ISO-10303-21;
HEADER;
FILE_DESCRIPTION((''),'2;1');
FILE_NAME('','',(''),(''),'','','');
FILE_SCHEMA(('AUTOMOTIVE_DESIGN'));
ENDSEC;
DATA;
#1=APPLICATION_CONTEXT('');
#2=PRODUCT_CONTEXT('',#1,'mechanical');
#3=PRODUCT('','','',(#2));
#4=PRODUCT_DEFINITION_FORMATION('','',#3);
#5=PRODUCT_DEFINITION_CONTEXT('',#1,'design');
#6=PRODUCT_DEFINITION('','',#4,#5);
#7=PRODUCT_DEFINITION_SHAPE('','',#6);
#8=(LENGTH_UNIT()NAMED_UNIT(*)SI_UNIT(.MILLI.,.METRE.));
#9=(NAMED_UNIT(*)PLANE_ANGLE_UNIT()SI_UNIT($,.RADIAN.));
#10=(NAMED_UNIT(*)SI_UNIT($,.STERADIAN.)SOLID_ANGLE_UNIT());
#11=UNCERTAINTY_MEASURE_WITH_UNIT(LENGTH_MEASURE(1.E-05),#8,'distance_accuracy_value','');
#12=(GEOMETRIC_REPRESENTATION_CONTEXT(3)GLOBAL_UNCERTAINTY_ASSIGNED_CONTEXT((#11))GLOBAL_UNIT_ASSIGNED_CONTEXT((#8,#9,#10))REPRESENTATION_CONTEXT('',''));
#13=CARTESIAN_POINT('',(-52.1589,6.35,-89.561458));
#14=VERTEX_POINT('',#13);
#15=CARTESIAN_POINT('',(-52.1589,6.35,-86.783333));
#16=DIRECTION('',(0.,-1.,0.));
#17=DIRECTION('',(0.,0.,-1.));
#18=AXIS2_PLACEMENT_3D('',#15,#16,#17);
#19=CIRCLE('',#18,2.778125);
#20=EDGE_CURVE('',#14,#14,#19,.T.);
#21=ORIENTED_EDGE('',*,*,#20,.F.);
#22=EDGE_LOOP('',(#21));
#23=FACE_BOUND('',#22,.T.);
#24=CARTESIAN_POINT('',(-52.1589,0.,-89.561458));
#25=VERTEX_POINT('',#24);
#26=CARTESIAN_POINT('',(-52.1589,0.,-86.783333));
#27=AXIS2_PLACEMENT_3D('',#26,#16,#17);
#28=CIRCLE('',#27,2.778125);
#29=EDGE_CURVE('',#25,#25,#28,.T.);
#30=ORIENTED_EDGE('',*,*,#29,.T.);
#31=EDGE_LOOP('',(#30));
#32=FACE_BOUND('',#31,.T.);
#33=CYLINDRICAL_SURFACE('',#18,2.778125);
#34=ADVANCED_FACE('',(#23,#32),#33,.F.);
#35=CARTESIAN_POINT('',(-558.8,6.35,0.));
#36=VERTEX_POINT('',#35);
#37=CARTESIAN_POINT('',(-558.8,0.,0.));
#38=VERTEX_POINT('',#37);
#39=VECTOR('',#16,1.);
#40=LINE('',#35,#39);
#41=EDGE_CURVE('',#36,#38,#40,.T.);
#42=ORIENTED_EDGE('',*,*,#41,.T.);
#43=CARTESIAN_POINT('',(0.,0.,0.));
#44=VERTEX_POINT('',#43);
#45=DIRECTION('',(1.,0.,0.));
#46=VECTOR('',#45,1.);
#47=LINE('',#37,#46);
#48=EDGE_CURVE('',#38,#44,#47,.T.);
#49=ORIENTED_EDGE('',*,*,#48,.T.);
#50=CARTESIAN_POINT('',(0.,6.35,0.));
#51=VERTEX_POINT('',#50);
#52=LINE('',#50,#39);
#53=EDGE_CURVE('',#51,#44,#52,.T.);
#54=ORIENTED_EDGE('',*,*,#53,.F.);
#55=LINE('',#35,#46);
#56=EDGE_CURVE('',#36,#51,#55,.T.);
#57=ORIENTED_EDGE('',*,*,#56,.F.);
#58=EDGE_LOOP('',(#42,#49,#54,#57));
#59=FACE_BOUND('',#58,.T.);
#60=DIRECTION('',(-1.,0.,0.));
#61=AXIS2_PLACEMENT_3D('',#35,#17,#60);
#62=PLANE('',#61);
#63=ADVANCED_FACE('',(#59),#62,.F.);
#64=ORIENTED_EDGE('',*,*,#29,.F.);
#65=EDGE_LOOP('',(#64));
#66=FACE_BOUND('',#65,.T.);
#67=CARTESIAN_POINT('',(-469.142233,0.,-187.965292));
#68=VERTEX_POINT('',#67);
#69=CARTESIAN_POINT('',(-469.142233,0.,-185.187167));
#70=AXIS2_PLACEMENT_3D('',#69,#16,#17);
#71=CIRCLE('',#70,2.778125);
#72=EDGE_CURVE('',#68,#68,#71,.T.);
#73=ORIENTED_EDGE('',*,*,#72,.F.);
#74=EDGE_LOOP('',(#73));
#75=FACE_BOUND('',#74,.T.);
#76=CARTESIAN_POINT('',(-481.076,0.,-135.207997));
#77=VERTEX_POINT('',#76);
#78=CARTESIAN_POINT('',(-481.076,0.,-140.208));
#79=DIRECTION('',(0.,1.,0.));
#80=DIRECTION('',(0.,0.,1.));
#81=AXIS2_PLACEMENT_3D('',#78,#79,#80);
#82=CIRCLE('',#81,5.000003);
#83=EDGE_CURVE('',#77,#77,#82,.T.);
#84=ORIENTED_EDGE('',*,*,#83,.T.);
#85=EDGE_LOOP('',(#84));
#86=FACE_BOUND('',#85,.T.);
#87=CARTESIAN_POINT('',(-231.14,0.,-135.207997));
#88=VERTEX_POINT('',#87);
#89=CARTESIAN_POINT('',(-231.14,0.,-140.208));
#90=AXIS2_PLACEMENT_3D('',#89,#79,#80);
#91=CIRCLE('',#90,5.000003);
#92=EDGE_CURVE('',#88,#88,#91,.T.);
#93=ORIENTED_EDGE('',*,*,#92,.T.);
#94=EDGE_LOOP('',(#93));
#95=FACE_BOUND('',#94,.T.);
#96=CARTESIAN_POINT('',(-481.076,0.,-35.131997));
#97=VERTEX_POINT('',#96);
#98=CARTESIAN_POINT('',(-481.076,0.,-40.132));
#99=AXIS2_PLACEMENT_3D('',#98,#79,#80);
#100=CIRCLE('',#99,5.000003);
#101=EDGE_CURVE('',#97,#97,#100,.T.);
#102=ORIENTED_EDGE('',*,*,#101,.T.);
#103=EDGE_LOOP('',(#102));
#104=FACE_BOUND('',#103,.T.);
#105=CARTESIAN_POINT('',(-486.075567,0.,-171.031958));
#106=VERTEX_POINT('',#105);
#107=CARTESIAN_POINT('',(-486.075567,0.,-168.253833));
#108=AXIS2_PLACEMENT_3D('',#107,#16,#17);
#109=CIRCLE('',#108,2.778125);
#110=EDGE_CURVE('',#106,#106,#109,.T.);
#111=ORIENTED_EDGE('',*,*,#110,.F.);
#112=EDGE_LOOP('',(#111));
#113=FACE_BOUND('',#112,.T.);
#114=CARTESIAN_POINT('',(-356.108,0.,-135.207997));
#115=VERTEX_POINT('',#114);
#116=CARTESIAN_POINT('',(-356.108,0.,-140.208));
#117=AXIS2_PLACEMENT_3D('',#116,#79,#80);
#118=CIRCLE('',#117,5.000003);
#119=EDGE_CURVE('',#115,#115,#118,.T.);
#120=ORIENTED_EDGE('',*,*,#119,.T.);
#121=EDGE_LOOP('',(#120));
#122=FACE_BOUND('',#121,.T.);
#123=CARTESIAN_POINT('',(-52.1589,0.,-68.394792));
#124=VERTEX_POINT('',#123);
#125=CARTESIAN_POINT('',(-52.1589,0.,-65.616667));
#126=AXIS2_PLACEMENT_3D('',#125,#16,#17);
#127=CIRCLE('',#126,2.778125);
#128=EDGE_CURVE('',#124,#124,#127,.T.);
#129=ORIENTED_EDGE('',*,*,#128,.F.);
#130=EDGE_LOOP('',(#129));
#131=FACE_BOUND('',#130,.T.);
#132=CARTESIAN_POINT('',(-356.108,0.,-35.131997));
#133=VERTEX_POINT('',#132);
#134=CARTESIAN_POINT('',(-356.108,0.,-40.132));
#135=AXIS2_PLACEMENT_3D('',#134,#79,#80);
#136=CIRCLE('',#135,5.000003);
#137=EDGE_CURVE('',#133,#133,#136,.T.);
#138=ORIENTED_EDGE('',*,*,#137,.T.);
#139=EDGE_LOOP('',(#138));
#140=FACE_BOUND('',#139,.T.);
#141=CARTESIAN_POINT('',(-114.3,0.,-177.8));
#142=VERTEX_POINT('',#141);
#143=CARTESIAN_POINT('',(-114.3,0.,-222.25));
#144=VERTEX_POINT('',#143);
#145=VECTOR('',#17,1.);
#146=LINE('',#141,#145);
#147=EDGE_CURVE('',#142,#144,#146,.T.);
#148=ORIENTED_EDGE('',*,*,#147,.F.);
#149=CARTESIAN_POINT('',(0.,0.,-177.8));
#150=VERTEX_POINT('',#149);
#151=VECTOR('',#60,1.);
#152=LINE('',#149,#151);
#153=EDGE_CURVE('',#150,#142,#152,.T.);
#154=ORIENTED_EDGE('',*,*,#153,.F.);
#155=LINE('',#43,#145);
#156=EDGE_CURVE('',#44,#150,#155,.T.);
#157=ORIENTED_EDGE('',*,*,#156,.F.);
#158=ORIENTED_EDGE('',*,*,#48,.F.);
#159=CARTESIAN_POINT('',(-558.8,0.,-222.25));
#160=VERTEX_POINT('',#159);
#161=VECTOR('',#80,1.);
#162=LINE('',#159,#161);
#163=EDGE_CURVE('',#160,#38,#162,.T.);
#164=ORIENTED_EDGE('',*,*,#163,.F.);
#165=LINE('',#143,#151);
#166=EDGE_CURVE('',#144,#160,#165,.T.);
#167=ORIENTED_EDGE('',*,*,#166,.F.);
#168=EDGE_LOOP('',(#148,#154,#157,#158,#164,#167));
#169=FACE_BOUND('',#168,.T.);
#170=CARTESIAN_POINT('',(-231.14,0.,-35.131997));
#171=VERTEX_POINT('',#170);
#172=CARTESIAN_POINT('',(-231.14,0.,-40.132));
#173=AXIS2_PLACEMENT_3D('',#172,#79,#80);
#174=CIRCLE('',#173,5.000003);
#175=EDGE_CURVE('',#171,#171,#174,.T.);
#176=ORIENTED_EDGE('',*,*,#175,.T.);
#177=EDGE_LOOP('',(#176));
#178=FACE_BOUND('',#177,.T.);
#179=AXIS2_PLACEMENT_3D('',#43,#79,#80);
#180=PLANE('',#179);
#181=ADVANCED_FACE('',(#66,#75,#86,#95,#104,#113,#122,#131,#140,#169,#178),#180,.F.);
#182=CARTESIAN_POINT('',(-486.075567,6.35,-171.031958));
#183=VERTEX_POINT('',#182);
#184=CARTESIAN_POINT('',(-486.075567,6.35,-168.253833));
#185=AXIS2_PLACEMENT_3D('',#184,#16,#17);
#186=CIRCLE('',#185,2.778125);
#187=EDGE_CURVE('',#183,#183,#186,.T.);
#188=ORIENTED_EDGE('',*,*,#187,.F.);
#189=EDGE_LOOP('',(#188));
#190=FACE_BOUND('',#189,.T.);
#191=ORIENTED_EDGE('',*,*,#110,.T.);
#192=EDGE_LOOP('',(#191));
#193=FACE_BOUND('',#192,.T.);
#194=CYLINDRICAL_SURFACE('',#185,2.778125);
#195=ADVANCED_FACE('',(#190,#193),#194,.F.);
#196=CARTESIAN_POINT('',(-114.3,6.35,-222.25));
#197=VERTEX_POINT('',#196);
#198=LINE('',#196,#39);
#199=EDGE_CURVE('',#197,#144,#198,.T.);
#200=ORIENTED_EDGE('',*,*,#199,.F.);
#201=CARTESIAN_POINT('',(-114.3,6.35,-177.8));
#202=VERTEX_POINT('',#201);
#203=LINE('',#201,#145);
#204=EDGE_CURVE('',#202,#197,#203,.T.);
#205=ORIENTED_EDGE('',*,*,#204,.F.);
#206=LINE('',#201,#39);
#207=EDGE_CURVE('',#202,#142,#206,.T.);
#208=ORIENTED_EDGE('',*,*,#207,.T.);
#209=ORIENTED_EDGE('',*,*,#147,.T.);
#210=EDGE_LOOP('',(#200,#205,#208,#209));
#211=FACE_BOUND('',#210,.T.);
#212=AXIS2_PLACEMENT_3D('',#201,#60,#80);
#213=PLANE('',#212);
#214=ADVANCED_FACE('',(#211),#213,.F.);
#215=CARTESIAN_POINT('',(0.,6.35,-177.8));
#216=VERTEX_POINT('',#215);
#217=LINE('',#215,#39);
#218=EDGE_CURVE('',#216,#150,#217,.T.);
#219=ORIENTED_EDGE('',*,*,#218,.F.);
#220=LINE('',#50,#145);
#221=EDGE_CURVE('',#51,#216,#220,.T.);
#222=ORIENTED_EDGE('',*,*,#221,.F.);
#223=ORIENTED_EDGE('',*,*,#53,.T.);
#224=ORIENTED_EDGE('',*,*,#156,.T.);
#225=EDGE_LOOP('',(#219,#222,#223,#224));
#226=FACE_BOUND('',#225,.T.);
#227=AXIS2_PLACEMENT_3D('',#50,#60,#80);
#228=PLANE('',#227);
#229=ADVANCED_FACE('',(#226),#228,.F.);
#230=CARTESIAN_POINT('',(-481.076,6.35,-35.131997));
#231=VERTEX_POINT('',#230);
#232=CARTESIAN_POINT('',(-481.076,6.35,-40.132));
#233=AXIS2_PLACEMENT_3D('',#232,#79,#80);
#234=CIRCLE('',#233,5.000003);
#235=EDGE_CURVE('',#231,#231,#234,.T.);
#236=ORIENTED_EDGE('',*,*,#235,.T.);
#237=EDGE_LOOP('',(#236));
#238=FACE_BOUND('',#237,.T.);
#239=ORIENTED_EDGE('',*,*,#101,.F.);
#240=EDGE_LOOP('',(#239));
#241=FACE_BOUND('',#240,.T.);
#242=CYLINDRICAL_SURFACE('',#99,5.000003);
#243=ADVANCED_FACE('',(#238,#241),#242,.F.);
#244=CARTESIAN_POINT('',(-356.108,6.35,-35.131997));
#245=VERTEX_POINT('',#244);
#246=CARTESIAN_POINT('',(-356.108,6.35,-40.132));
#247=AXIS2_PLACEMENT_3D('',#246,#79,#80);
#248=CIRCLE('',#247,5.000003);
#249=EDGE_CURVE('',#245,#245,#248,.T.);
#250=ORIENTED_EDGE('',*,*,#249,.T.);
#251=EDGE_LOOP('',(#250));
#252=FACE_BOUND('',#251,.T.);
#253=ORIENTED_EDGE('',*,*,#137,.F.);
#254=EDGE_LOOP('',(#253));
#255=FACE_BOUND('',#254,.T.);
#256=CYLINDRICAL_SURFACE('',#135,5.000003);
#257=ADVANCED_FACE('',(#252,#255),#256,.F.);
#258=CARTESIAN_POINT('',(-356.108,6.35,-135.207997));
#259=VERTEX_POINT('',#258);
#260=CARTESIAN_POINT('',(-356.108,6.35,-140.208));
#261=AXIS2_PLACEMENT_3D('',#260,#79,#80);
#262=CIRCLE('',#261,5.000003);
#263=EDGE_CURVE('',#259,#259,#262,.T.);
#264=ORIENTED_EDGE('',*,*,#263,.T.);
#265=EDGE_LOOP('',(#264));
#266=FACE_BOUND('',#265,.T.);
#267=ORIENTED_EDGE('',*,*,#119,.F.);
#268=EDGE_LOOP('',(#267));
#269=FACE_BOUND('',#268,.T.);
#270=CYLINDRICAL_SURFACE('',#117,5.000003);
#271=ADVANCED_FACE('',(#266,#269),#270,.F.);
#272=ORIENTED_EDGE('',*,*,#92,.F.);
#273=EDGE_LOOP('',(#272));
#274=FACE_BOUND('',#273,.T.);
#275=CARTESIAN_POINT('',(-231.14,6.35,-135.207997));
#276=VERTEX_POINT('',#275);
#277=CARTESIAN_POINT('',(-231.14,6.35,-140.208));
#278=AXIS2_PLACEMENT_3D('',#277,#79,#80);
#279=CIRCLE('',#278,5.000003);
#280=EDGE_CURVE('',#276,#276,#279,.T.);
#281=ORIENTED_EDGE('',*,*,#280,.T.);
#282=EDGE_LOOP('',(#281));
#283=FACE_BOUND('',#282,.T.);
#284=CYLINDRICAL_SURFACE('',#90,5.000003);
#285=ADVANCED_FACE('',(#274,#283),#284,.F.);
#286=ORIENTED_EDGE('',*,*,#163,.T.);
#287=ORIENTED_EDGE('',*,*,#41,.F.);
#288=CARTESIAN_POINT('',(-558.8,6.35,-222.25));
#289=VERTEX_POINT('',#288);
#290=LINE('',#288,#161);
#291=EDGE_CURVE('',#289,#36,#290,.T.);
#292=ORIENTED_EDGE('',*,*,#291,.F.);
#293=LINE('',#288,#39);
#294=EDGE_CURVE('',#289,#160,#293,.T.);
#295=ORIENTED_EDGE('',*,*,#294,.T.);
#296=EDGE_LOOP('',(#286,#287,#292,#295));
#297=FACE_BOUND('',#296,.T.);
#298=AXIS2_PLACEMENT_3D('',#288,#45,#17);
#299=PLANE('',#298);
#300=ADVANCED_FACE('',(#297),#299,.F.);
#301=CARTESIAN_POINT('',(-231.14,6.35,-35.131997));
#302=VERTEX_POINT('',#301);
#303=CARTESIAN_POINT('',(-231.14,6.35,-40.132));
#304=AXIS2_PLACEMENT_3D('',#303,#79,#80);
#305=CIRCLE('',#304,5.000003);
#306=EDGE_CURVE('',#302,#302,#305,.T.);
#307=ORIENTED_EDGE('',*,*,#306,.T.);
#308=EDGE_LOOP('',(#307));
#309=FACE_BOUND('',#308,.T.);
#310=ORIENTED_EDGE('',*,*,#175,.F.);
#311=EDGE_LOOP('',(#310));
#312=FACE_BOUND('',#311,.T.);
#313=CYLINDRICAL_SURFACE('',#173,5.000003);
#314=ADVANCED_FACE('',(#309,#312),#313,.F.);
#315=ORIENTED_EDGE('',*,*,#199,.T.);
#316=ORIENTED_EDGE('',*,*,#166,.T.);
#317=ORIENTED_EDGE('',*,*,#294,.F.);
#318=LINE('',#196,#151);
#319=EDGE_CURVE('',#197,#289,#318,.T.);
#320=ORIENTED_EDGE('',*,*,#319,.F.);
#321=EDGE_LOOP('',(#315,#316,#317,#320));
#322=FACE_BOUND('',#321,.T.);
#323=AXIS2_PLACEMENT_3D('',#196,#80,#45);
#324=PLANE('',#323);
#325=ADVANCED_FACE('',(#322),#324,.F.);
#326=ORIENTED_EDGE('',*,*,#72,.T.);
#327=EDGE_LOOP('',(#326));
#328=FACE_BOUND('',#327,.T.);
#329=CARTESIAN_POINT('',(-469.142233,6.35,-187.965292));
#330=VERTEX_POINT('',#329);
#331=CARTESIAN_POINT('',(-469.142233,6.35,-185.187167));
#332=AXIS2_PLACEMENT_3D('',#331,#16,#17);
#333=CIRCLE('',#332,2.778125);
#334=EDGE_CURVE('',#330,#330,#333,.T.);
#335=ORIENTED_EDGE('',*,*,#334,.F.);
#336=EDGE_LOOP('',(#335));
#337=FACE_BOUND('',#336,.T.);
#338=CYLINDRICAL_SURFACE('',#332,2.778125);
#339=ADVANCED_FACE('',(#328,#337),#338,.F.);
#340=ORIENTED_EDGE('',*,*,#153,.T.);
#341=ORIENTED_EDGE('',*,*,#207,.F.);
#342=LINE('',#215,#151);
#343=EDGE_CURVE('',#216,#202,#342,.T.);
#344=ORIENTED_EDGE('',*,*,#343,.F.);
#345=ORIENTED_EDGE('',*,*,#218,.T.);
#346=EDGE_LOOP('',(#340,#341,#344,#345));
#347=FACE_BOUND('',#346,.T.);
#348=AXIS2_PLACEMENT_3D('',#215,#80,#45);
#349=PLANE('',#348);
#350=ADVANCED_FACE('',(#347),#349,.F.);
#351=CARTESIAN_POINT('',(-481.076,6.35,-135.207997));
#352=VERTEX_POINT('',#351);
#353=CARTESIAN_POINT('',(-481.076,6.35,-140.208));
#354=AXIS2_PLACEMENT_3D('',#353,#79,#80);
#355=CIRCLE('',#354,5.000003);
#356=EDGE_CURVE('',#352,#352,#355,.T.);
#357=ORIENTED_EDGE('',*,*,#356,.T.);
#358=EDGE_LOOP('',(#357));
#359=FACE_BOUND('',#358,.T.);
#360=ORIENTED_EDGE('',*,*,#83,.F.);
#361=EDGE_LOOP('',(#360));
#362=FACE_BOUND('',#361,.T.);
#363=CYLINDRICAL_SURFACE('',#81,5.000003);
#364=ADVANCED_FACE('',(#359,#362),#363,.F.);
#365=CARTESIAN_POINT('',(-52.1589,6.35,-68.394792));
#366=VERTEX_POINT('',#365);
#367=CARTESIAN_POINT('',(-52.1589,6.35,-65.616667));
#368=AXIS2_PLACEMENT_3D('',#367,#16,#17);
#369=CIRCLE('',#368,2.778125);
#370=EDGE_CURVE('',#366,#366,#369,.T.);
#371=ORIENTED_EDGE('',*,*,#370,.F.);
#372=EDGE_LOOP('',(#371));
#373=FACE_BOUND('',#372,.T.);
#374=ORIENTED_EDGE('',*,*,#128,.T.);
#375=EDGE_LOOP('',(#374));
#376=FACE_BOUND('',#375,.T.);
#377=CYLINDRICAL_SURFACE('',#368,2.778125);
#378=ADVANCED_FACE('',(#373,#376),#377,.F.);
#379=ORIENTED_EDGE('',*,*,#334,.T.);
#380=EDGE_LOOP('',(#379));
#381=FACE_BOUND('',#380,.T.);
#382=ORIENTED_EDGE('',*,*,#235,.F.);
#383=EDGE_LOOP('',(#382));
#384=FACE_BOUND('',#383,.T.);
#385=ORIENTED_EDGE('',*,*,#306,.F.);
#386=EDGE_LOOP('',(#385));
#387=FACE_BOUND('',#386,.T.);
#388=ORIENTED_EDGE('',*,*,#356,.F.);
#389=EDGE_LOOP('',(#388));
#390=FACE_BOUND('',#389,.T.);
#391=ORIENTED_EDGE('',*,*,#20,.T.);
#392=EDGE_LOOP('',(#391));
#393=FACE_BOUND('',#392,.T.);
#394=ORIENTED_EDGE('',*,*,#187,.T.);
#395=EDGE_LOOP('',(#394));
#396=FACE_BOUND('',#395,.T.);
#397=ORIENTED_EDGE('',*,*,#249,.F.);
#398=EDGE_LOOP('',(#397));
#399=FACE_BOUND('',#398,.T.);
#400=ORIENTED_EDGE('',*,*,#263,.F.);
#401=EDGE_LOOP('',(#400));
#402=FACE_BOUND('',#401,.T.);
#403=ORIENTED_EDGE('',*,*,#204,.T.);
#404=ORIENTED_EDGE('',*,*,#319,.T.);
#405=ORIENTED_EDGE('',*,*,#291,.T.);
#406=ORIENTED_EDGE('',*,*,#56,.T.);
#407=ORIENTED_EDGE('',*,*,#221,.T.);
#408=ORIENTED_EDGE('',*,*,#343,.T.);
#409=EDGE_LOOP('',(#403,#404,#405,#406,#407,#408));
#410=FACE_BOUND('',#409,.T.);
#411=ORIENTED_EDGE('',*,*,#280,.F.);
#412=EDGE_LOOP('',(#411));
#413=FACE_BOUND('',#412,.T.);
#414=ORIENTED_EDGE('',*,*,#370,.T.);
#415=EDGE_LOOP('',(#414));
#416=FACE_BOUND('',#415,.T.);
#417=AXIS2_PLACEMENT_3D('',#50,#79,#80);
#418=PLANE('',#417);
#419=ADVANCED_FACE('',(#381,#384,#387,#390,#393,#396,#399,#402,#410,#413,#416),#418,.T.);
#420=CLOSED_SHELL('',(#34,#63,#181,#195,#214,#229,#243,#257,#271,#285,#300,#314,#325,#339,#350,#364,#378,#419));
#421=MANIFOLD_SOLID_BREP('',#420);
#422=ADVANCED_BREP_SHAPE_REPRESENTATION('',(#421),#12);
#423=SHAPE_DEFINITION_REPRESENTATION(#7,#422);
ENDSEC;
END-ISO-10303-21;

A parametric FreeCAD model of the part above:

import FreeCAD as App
import Part
import Sketcher
from FreeCAD import Vector
Q = App.Units.Quantity


def add_polygon(sketch, points):
    """Adds a closed chain of lines whose ends are joined by coincident constraints."""
    first, n = sketch.GeometryCount, len(points)
    for a, b in zip(points, points[1:] + points[:1]):
        sketch.addGeometry(Part.LineSegment(App.Vector(*a, 0), App.Vector(*b, 0)), False)
    for i in range(n):
        sketch.addConstraint(Sketcher.Constraint("Coincident", first + i, 2, first + (i + 1) % n, 1))

doc = App.newDocument("Part")
params = doc.addObject("Spreadsheet::Sheet", "Params")
for row, (alias, value) in enumerate([
    ("sketch1_width", "22 in"),
    ("sketch1_height", "7 in"),
    ("sketch1_width2", "4.5 in"),
    ("sketch1_height2", "1.75 in"),
    ("pad1_length", "0.25 in"),
    ("sketch3_diameter", "0.21875 in"),
], start=1):
    params.set(f"A{row}", alias)
    params.set(f"B{row}", "=" + value)
    params.setAlias(f"B{row}", alias)

body = doc.addObject("PartDesign::Body", "Body")

sketch1 = body.newObject("Sketcher::SketchObject", "Sketch")
sketch1.AttachmentSupport = (doc.getObject("XZ_Plane"), [""])
sketch1.MapMode = "FlatFace"
add_polygon(sketch1, [(0, 0), (0, -178), (-114, -178), (-114, -222), (-559, -222), (-559, 0)])
sketch1.addConstraint([
    Sketcher.Constraint("Vertical", 0),
    Sketcher.Constraint("Horizontal", 1),
    Sketcher.Constraint("Vertical", 2),
    Sketcher.Constraint("Horizontal", 3),
    Sketcher.Constraint("Vertical", 4),
    Sketcher.Constraint("Horizontal", 5),
    Sketcher.Constraint("Coincident", 5, 2, -1, 1),
    Sketcher.Constraint("DistanceX", 5, 1, 5, 2, Q("22 in")),
    Sketcher.Constraint("DistanceY", 0, 2, 0, 1, Q("7 in")),
    Sketcher.Constraint("DistanceX", 1, 2, 1, 1, Q("4.5 in")),
    Sketcher.Constraint("DistanceY", 2, 2, 2, 1, Q("1.75 in")),
])
sketch1.setExpression("Constraints[13]", "Params.sketch1_width")
sketch1.setExpression("Constraints[14]", "Params.sketch1_height")
sketch1.setExpression("Constraints[15]", "Params.sketch1_width2")
sketch1.setExpression("Constraints[16]", "Params.sketch1_height2")
pad1 = body.newObject("PartDesign::Pad", "Pad")
pad1.Profile = sketch1
pad1.setExpression("Length", "Params.pad1_length")
pad1.Reversed = True

sketch2 = body.newObject("Sketcher::SketchObject", "Sketch001")
sketch2.AttachmentSupport = (doc.getObject("XZ_Plane"), [""])
sketch2.MapMode = "FlatFace"
sketch2.AttachmentOffset = App.Placement(Vector(0, 0, -0.25 * 25.4), App.Rotation())
sketch2.addGeometry([
    Part.Circle(Vector(-481, -40, 0), Vector(0, 0, 1), 5),
    Part.Circle(Vector(-356, -40, 0), Vector(0, 0, 1), 5),
    Part.Circle(Vector(-231, -40, 0), Vector(0, 0, 1), 5),
    Part.Circle(Vector(-356, -140, 0), Vector(0, 0, 1), 5),
    Part.Circle(Vector(-231, -140, 0), Vector(0, 0, 1), 5),
    Part.Circle(Vector(-481, -140, 0), Vector(0, 0, 1), 5),
], False)
sketch2.addConstraint([
    Sketcher.Constraint("Equal", 0, 1),
    Sketcher.Constraint("Equal", 1, 2),
    Sketcher.Constraint("Equal", 2, 3),
    Sketcher.Constraint("Equal", 3, 4),
    Sketcher.Constraint("Equal", 4, 5),
    Sketcher.Constraint("Horizontal", 0, 3, 1, 3),
    Sketcher.Constraint("Horizontal", 1, 3, 2, 3),
    Sketcher.Constraint("Horizontal", 3, 3, 4, 3),
    Sketcher.Constraint("Horizontal", 4, 3, 5, 3),
    Sketcher.Constraint("Vertical", 1, 3, 3, 3),
    Sketcher.Constraint("Vertical", 2, 3, 4, 3),
    Sketcher.Constraint("Vertical", 0, 3, 5, 3),
    Sketcher.Constraint("DistanceX", 2, 3, -1, 1, Q("9.1 in")),
    Sketcher.Constraint("DistanceX", 0, 3, -1, 1, Q("18.94 in")),
    Sketcher.Constraint("DistanceY", 0, 3, -1, 1, Q("1.58 in")),
    Sketcher.Constraint("DistanceX", 1, 3, -1, 1, Q("14.02 in")),
    Sketcher.Constraint("DistanceY", 3, 3, -1, 1, Q("5.52 in")),
    Sketcher.Constraint("Diameter", 0, 10.000005),
])
pocket1 = body.newObject("PartDesign::Pocket", "Pocket")
pocket1.Profile = sketch2
pocket1.Type = "ThroughAll"
pocket1.Midplane = True

sketch3 = body.newObject("Sketcher::SketchObject", "Sketch002")
sketch3.AttachmentSupport = (doc.getObject("XZ_Plane"), [""])
sketch3.MapMode = "FlatFace"
sketch3.addGeometry([
    Part.Circle(Vector(-52.2, -86.8, 0), Vector(0, 0, 1), 2.8),
    Part.Circle(Vector(-52.2, -65.6, 0), Vector(0, 0, 1), 2.8),
    Part.Circle(Vector(-469.1, -185.2, 0), Vector(0, 0, 1), 2.8),
    Part.Circle(Vector(-486.1, -168.3, 0), Vector(0, 0, 1), 2.8),
], False)
sketch3.addConstraint([
    Sketcher.Constraint("Equal", 0, 1),
    Sketcher.Constraint("Equal", 1, 2),
    Sketcher.Constraint("Equal", 2, 3),
    Sketcher.Constraint("Vertical", 0, 3, 1, 3),
    Sketcher.Constraint("Diameter", 0, Q("0.21875 in")),
    Sketcher.Constraint("DistanceX", 0, 3, -1, 1, Q("2.0535 in")),
    Sketcher.Constraint("DistanceY", 2, 3, 1, 3, Q("4.7075 in")),
    Sketcher.Constraint("DistanceY", 3, 3, 0, 3, Q("3.2075 in")),
    Sketcher.Constraint("DistanceY", 0, 3, -1, 1, 86.783333),
    Sketcher.Constraint("DistanceY", 1, 3, -1, 1, 65.616667),
    Sketcher.Constraint("DistanceX", 2, 3, -1, 1, 469.142233),
    Sketcher.Constraint("DistanceX", 3, 3, -1, 1, 486.075567),
])
sketch3.setExpression("Constraints[4]", "Params.sketch3_diameter")
pocket2 = body.newObject("PartDesign::Pocket", "Pocket001")
pocket2.Profile = sketch3
pocket2.Type = "ThroughAll"

doc.recompute()
